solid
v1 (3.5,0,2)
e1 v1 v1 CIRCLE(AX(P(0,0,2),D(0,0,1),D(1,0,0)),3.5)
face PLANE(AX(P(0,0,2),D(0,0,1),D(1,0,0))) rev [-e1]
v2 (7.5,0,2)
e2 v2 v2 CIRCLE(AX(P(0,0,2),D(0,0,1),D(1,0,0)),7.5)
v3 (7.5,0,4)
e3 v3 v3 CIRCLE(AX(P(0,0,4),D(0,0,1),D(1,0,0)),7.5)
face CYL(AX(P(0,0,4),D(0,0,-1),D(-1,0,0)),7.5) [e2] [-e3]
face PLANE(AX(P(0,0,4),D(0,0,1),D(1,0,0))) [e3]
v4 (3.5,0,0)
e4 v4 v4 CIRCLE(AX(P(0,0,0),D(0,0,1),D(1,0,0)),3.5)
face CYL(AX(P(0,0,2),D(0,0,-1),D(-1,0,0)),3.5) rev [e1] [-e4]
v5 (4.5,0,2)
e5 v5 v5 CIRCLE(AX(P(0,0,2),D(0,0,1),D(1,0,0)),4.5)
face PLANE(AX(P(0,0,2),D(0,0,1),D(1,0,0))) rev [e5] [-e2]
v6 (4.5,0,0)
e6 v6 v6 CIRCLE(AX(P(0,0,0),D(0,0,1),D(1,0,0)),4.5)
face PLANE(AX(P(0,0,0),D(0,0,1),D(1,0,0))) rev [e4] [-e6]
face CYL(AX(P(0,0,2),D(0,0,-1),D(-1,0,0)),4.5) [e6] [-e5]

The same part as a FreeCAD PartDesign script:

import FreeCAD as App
import Part
import Sketcher

V = App.Vector

doc = App.newDocument("Part")
body = doc.addObject("PartDesign::Body", "Body")

# Sketch on XY plane
sketch1 = doc.addObject("Sketcher::SketchObject", "Sketch")
body.addObject(sketch1)
sketch1.AttachmentSupport = (doc.XY_Plane, [""])
sketch1.MapMode = "FlatFace"
sketch1.addGeometry(Part.Circle(V(0, 0, 0), V(0, 0, 1), 4.5), False)
sketch1.addGeometry(Part.Circle(V(0, 0, 0), V(0, 0, 1), 3.5), False)
sketch1.addConstraint(Sketcher.Constraint("Coincident", 0, 3, -1, 1))
sketch1.addConstraint(Sketcher.Constraint("Coincident", 1, 3, -1, 1))
sketch1.addConstraint(Sketcher.Constraint("Diameter", 0, 9.0))
sketch1.addConstraint(Sketcher.Constraint("Diameter", 1, 7.0))
pad1 = doc.addObject("PartDesign::Pad", "Pad")
body.addObject(pad1)
pad1.Profile = sketch1
pad1.Length = 2

# Sketch on XY plane
sketch2 = doc.addObject("Sketcher::SketchObject", "Sketch001")
body.addObject(sketch2)
sketch2.AttachmentSupport = (doc.XY_Plane, [""])
sketch2.MapMode = "FlatFace"
sketch2.AttachmentOffset = App.Placement(V(0, 0, 2), App.Rotation())
sketch2.addGeometry(Part.Circle(V(0, 0, 0), V(0, 0, 1), 8), False)
sketch2.addConstraint(Sketcher.Constraint("Coincident", 0, 3, -1, 1))
sketch2.addConstraint(Sketcher.Constraint("Diameter", 0, 15.0))
pad2 = doc.addObject("PartDesign::Pad", "Pad001")
body.addObject(pad2)
pad2.Profile = sketch2
pad2.Length = 2

doc.recompute()
